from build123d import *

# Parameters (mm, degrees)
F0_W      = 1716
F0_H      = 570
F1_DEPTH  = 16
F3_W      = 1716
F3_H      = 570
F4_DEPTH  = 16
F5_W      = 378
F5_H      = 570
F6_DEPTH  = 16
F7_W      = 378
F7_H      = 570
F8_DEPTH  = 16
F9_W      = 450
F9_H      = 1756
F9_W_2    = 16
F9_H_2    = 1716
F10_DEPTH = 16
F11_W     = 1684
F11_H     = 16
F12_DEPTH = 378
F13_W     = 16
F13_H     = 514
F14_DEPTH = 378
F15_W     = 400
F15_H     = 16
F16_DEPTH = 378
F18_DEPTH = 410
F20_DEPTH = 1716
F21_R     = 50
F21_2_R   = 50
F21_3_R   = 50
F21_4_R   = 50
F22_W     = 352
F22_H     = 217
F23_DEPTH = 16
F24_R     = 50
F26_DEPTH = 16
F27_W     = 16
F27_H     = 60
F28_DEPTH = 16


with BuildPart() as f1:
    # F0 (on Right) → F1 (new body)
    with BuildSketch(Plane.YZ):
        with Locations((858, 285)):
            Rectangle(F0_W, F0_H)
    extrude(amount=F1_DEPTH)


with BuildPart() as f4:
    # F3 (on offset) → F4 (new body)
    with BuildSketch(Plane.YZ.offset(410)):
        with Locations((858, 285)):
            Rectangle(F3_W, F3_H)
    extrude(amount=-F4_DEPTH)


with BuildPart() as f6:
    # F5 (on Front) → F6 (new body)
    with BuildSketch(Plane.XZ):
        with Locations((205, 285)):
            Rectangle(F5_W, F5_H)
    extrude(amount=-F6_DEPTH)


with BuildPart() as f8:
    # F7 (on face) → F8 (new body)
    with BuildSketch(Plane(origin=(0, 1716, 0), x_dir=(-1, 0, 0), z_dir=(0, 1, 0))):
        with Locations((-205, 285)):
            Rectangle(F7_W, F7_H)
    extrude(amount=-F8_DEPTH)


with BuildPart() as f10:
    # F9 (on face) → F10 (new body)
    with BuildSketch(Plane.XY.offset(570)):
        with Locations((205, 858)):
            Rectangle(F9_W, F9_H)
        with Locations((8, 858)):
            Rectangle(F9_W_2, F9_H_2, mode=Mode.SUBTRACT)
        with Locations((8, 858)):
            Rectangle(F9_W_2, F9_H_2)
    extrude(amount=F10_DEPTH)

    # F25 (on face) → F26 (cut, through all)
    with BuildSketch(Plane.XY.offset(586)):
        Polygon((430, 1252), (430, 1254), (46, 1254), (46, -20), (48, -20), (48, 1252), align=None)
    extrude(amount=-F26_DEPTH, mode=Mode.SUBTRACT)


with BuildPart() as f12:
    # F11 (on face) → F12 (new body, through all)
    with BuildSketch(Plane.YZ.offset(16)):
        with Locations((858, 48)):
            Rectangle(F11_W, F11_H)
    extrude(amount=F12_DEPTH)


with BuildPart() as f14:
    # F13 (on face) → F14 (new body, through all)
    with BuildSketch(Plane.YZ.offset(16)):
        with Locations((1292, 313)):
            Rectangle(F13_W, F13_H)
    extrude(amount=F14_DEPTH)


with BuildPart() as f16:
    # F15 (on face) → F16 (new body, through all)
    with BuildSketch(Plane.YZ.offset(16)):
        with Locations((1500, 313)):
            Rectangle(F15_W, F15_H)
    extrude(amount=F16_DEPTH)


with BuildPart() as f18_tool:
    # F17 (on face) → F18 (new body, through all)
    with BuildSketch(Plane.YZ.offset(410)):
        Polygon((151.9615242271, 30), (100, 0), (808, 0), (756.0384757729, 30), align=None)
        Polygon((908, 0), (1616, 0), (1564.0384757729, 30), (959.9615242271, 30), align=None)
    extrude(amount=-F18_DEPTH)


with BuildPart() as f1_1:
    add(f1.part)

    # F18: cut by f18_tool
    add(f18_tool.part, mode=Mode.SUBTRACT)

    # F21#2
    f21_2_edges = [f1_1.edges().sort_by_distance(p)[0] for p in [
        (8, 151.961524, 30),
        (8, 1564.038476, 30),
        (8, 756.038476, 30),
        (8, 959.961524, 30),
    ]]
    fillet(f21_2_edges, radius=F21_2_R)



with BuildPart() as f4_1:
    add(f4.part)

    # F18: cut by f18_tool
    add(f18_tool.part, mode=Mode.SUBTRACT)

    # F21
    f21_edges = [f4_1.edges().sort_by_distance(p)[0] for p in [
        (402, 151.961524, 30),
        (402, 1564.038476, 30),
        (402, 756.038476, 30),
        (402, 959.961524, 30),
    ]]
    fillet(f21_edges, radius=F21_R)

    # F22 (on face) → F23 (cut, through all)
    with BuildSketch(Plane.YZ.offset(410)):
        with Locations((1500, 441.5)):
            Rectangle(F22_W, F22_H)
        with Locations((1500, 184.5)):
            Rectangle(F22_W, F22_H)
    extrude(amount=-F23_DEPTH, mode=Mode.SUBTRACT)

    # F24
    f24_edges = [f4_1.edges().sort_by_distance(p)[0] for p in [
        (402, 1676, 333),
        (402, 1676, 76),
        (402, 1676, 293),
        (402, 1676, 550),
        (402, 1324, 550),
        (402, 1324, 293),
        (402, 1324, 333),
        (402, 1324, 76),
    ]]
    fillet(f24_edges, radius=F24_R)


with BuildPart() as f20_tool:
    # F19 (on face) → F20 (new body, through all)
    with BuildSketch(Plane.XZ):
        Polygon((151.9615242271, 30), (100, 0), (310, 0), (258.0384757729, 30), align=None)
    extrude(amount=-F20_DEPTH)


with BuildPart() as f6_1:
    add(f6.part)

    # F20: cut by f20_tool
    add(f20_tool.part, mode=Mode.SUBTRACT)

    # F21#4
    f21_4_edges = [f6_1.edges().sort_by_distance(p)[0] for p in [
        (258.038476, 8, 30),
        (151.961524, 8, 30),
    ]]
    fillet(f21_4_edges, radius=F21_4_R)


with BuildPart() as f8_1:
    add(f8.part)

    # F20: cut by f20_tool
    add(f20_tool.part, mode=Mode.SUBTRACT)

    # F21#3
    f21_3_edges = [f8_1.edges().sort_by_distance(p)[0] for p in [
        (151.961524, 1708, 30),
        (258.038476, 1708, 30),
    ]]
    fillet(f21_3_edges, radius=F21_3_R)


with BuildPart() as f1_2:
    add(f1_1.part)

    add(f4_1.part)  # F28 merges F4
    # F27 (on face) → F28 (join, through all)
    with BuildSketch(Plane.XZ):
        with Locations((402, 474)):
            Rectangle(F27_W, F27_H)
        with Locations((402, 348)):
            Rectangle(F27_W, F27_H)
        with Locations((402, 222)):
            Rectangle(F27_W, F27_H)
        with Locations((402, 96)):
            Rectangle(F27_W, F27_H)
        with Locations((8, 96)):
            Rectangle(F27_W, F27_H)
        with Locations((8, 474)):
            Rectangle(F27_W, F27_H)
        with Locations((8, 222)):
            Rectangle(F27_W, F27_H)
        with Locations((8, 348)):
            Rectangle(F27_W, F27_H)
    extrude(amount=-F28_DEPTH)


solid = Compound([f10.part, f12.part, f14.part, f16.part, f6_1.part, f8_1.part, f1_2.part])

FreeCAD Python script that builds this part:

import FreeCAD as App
import Part
import Sketcher
Q = App.Units.Quantity


def edges_at(feature, points):
    """Names of the edges that pass closest to the given points."""
    edges = feature.Shape.Edges
    near = lambda p: min(range(len(edges)), key=lambda i: edges[i].distToShape(Part.Vertex(*p))[0])
    return sorted({f"Edge{near(p) + 1}" for p in points})

doc = App.newDocument("Part")
body = doc.addObject("PartDesign::Body", "Body")

# Sketch on YZ plane
sketch1 = doc.addObject("Sketcher::SketchObject", "Sketch")
body.addObject(sketch1)
sketch1.AttachmentSupport = (doc.YZ_Plane, [""])
sketch1.MapMode = "FlatFace"
sketch1.addGeometry(Part.LineSegment(App.Vector(0, 570, 0), App.Vector(0, 0, 0)), False)
sketch1.addGeometry(Part.LineSegment(App.Vector(0, 0, 0), App.Vector(1716, 0, 0)), False)
sketch1.addGeometry(Part.LineSegment(App.Vector(1716, 0, 0), App.Vector(1716, 570, 0)), False)
sketch1.addGeometry(Part.LineSegment(App.Vector(1716, 570, 0), App.Vector(0, 570, 0)), False)
sketch1.addConstraint(Sketcher.Constraint("Coincident", 0, 2, 1, 1))
sketch1.addConstraint(Sketcher.Constraint("Coincident", 1, 2, 2, 1))
sketch1.addConstraint(Sketcher.Constraint("Coincident", 2, 2, 3, 1))
sketch1.addConstraint(Sketcher.Constraint("Coincident", 3, 2, 0, 1))
sketch1.addConstraint(Sketcher.Constraint("Vertical", 0))
sketch1.addConstraint(Sketcher.Constraint("Horizontal", 1))
sketch1.addConstraint(Sketcher.Constraint("Vertical", 2))
sketch1.addConstraint(Sketcher.Constraint("Horizontal", 3))
sketch1.addConstraint(Sketcher.Constraint("Coincident", 0, 2, -1, 1))
sketch1.addConstraint(Sketcher.Constraint("DistanceX", 1, 1, 1, 2, Q("1716 mm")))
sketch1.addConstraint(Sketcher.Constraint("DistanceY", 0, 2, 0, 1, Q("570 mm")))
pad1 = doc.addObject("PartDesign::Pad", "Pad")
body.addObject(pad1)
pad1.Profile = sketch1
pad1.Length = 16
body2 = doc.addObject("PartDesign::Body", "Body001")

# Sketch on YZ plane
sketch2 = doc.addObject("Sketcher::SketchObject", "Sketch001")
body2.addObject(sketch2)
sketch2.AttachmentSupport = (doc.getObject("YZ_Plane001"), [""])
sketch2.MapMode = "FlatFace"
sketch2.AttachmentOffset = App.Placement(App.Vector(0, 0, 410), App.Rotation())
sketch2.addGeometry(Part.LineSegment(App.Vector(0, 570, 0), App.Vector(0, 0, 0)), False)
sketch2.addGeometry(Part.LineSegment(App.Vector(0, 0, 0), App.Vector(1716, 0, 0)), False)
sketch2.addGeometry(Part.LineSegment(App.Vector(1716, 0, 0), App.Vector(1716, 570, 0)), False)
sketch2.addGeometry(Part.LineSegment(App.Vector(1716, 570, 0), App.Vector(0, 570, 0)), False)
sketch2.addConstraint(Sketcher.Constraint("Coincident", 0, 2, 1, 1))
sketch2.addConstraint(Sketcher.Constraint("Coincident", 1, 2, 2, 1))
sketch2.addConstraint(Sketcher.Constraint("Coincident", 2, 2, 3, 1))
sketch2.addConstraint(Sketcher.Constraint("Coincident", 3, 2, 0, 1))
sketch2.addConstraint(Sketcher.Constraint("Vertical", 0))
sketch2.addConstraint(Sketcher.Constraint("Horizontal", 1))
sketch2.addConstraint(Sketcher.Constraint("Vertical", 2))
sketch2.addConstraint(Sketcher.Constraint("Horizontal", 3))
sketch2.addConstraint(Sketcher.Constraint("Coincident", 0, 2, -1, 1))
sketch2.addConstraint(Sketcher.Constraint("DistanceX", 1, 1, 1, 2, Q("1716 mm")))
sketch2.addConstraint(Sketcher.Constraint("DistanceY", 0, 2, 0, 1, Q("570 mm")))
pad2 = doc.addObject("PartDesign::Pad", "Pad001")
body2.addObject(pad2)
pad2.Profile = sketch2
pad2.Length = 16
pad2.Reversed = True
body3 = doc.addObject("PartDesign::Body", "Body002")

# Sketch on XZ plane
sketch3 = doc.addObject("Sketcher::SketchObject", "Sketch002")
body3.addObject(sketch3)
sketch3.AttachmentSupport = (doc.getObject("XZ_Plane002"), [""])
sketch3.MapMode = "FlatFace"
sketch3.addGeometry(Part.LineSegment(App.Vector(16, 570, 0), App.Vector(16, 0, 0)), False)
sketch3.addGeometry(Part.LineSegment(App.Vector(16, 0, 0), App.Vector(394, 0, 0)), False)
sketch3.addGeometry(Part.LineSegment(App.Vector(394, 0, 0), App.Vector(394, 570, 0)), False)
sketch3.addGeometry(Part.LineSegment(App.Vector(394, 570, 0), App.Vector(16, 570, 0)), False)
sketch3.addConstraint(Sketcher.Constraint("Coincident", 0, 2, 1, 1))
sketch3.addConstraint(Sketcher.Constraint("Coincident", 1, 2, 2, 1))
sketch3.addConstraint(Sketcher.Constraint("Coincident", 2, 2, 3, 1))
sketch3.addConstraint(Sketcher.Constraint("Coincident", 3, 2, 0, 1))
sketch3.addConstraint(Sketcher.Constraint("Vertical", 0))
sketch3.addConstraint(Sketcher.Constraint("Horizontal", 1))
sketch3.addConstraint(Sketcher.Constraint("Vertical", 2))
sketch3.addConstraint(Sketcher.Constraint("Horizontal", 3))
sketch3.addConstraint(Sketcher.Constraint("PointOnObject", 0, 2, -1))
sketch3.addConstraint(Sketcher.Constraint("DistanceX", 1, 1, 1, 2, Q("378 mm")))
sketch3.addConstraint(Sketcher.Constraint("DistanceY", 0, 2, 0, 1, Q("570 mm")))
sketch3.addConstraint(Sketcher.Constraint("DistanceX", -1, 1, 0, 2, Q("16 mm")))
pad3 = doc.addObject("PartDesign::Pad", "Pad002")
body3.addObject(pad3)
pad3.Profile = sketch3
pad3.Length = 16
pad3.Reversed = True
body4 = doc.addObject("PartDesign::Body", "Body003")

# Sketch on XZ plane
sketch4 = doc.addObject("Sketcher::SketchObject", "Sketch003")
body4.addObject(sketch4)
sketch4.AttachmentSupport = (doc.getObject("XZ_Plane003"), [""])
sketch4.MapMode = "FlatFace"
sketch4.AttachmentOffset = App.Placement(App.Vector(0, 0, -1716), App.Rotation())
sketch4.addGeometry(Part.LineSegment(App.Vector(394, 570, 0), App.Vector(394, 0, 0)), False)
sketch4.addGeometry(Part.LineSegment(App.Vector(394, 0, 0), App.Vector(16, 0, 0)), False)
sketch4.addGeometry(Part.LineSegment(App.Vector(16, 0, 0), App.Vector(16, 570, 0)), False)
sketch4.addGeometry(Part.LineSegment(App.Vector(16, 570, 0), App.Vector(394, 570, 0)), False)
sketch4.addConstraint(Sketcher.Constraint("Coincident", 0, 2, 1, 1))
sketch4.addConstraint(Sketcher.Constraint("Coincident", 1, 2, 2, 1))
sketch4.addConstraint(Sketcher.Constraint("Coincident", 2, 2, 3, 1))
sketch4.addConstraint(Sketcher.Constraint("Coincident", 3, 2, 0, 1))
sketch4.addConstraint(Sketcher.Constraint("Vertical", 0))
sketch4.addConstraint(Sketcher.Constraint("Horizontal", 1))
sketch4.addConstraint(Sketcher.Constraint("Vertical", 2))
sketch4.addConstraint(Sketcher.Constraint("Horizontal", 3))
sketch4.addConstraint(Sketcher.Constraint("PointOnObject", 0, 2, -1))
sketch4.addConstraint(Sketcher.Constraint("DistanceX", 1, 2, 1, 1, Q("378 mm")))
sketch4.addConstraint(Sketcher.Constraint("DistanceY", 0, 2, 0, 1, Q("570 mm")))
sketch4.addConstraint(Sketcher.Constraint("DistanceX", -1, 1, 0, 2, Q("394 mm")))
pad4 = doc.addObject("PartDesign::Pad", "Pad003")
body4.addObject(pad4)
pad4.Profile = sketch4
pad4.Length = 16
body5 = doc.addObject("PartDesign::Body", "Body004")
body5.AllowCompound = True

# Sketch on XY plane
sketch5 = doc.addObject("Sketcher::SketchObject", "Sketch004")
body5.addObject(sketch5)
sketch5.AttachmentSupport = (doc.getObject("XY_Plane004"), [""])
sketch5.MapMode = "FlatFace"
sketch5.AttachmentOffset = App.Placement(App.Vector(0, 0, 570), App.Rotation())
sketch5.addGeometry(Part.LineSegment(App.Vector(-20, 1736, 0), App.Vector(-20, -20, 0)), False)
sketch5.addGeometry(Part.LineSegment(App.Vector(-20, -20, 0), App.Vector(430, -20, 0)), False)
sketch5.addGeometry(Part.LineSegment(App.Vector(430, -20, 0), App.Vector(430, 1736, 0)), False)
sketch5.addGeometry(Part.LineSegment(App.Vector(430, 1736, 0), App.Vector(-20, 1736, 0)), False)
sketch5.addConstraint(Sketcher.Constraint("Coincident", 0, 2, 1, 1))
sketch5.addConstraint(Sketcher.Constraint("Coincident", 1, 2, 2, 1))
sketch5.addConstraint(Sketcher.Constraint("Coincident", 2, 2, 3, 1))
sketch5.addConstraint(Sketcher.Constraint("Coincident", 3, 2, 0, 1))
sketch5.addConstraint(Sketcher.Constraint("Vertical", 0))
sketch5.addConstraint(Sketcher.Constraint("Horizontal", 1))
sketch5.addConstraint(Sketcher.Constraint("Vertical", 2))
sketch5.addConstraint(Sketcher.Constraint("Horizontal", 3))
sketch5.addConstraint(Sketcher.Constraint("DistanceX", 1, 1, 1, 2, Q("450 mm")))
sketch5.addConstraint(Sketcher.Constraint("DistanceY", 0, 2, 0, 1, Q("1756 mm")))
sketch5.addConstraint(Sketcher.Constraint("DistanceX", 0, 2, -1, 1, Q("20 mm")))
sketch5.addConstraint(Sketcher.Constraint("DistanceY", 0, 2, -1, 1, Q("20 mm")))
pad5 = doc.addObject("PartDesign::Pad", "Pad004")
body5.addObject(pad5)
pad5.Profile = sketch5
pad5.Length = 16

# Sketch on XY plane
sketch6 = doc.addObject("Sketcher::SketchObject", "Sketch005")
body5.addObject(sketch6)
sketch6.AttachmentSupport = (doc.getObject("XY_Plane004"), [""])
sketch6.MapMode = "FlatFace"
sketch6.AttachmentOffset = App.Placement(App.Vector(0, 0, 586), App.Rotation())
sketch6.addGeometry(Part.LineSegment(App.Vector(430, 1252, 0), App.Vector(430, 1254, 0)), False)
sketch6.addGeometry(Part.LineSegment(App.Vector(430, 1254, 0), App.Vector(46, 1254, 0)), False)
sketch6.addGeometry(Part.LineSegment(App.Vector(46, 1254, 0), App.Vector(46, -20, 0)), False)
sketch6.addGeometry(Part.LineSegment(App.Vector(46, -20, 0), App.Vector(48, -20, 0)), False)
sketch6.addGeometry(Part.LineSegment(App.Vector(48, -20, 0), App.Vector(48, 1252, 0)), False)
sketch6.addGeometry(Part.LineSegment(App.Vector(48, 1252, 0), App.Vector(430, 1252, 0)), False)
sketch6.addConstraint(Sketcher.Constraint("Coincident", 0, 2, 1, 1))
sketch6.addConstraint(Sketcher.Constraint("Coincident", 1, 2, 2, 1))
sketch6.addConstraint(Sketcher.Constraint("Coincident", 2, 2, 3, 1))
sketch6.addConstraint(Sketcher.Constraint("Coincident", 3, 2, 4, 1))
sketch6.addConstraint(Sketcher.Constraint("Coincident", 4, 2, 5, 1))
sketch6.addConstraint(Sketcher.Constraint("Coincident", 5, 2, 0, 1))
sketch6.addConstraint(Sketcher.Constraint("Vertical", 0))
sketch6.addConstraint(Sketcher.Constraint("Horizontal", 1))
sketch6.addConstraint(Sketcher.Constraint("Vertical", 2))
sketch6.addConstraint(Sketcher.Constraint("Horizontal", 3))
sketch6.addConstraint(Sketcher.Constraint("Vertical", 4))
sketch6.addConstraint(Sketcher.Constraint("Horizontal", 5))
sketch6.addConstraint(Sketcher.Constraint("Equal", 3, 0))
sketch6.addConstraint(Sketcher.Constraint("DistanceX", 1, 2, 1, 1, Q("384 mm")))
sketch6.addConstraint(Sketcher.Constraint("DistanceX", 3, 1, 3, 2, Q("2 mm")))
sketch6.addConstraint(Sketcher.Constraint("DistanceY", 2, 2, 2, 1, Q("1274 mm")))
sketch6.addConstraint(Sketcher.Constraint("DistanceX", -1, 1, 0, 2, Q("430 mm")))
sketch6.addConstraint(Sketcher.Constraint("DistanceY", -1, 1, 0, 2, Q("1254 mm")))
pocket1 = doc.addObject("PartDesign::Pocket", "Pocket")
body5.addObject(pocket1)
pocket1.Profile = sketch6
pocket1.Type = "ThroughAll"
body6 = doc.addObject("PartDesign::Body", "Body005")

# Sketch on YZ plane
sketch7 = doc.addObject("Sketcher::SketchObject", "Sketch006")
body6.addObject(sketch7)
sketch7.AttachmentSupport = (doc.getObject("YZ_Plane005"), [""])
sketch7.MapMode = "FlatFace"
sketch7.AttachmentOffset = App.Placement(App.Vector(0, 0, 16), App.Rotation())
sketch7.addGeometry(Part.LineSegment(App.Vector(16, 56, 0), App.Vector(16, 40, 0)), False)
sketch7.addGeometry(Part.LineSegment(App.Vector(16, 40, 0), App.Vector(1700, 40, 0)), False)
sketch7.addGeometry(Part.LineSegment(App.Vector(1700, 40, 0), App.Vector(1700, 56, 0)), False)
sketch7.addGeometry(Part.LineSegment(App.Vector(1700, 56, 0), App.Vector(16, 56, 0)), False)
sketch7.addConstraint(Sketcher.Constraint("Coincident", 0, 2, 1, 1))
sketch7.addConstraint(Sketcher.Constraint("Coincident", 1, 2, 2, 1))
sketch7.addConstraint(Sketcher.Constraint("Coincident", 2, 2, 3, 1))
sketch7.addConstraint(Sketcher.Constraint("Coincident", 3, 2, 0, 1))
sketch7.addConstraint(Sketcher.Constraint("Vertical", 0))
sketch7.addConstraint(Sketcher.Constraint("Horizontal", 1))
sketch7.addConstraint(Sketcher.Constraint("Vertical", 2))
sketch7.addConstraint(Sketcher.Constraint("Horizontal", 3))
sketch7.addConstraint(Sketcher.Constraint("DistanceX", 1, 1, 1, 2, Q("1684 mm")))
sketch7.addConstraint(Sketcher.Constraint("DistanceY", 0, 2, 0, 1, Q("16 mm")))
sketch7.addConstraint(Sketcher.Constraint("DistanceX", -1, 1, 0, 2, Q("16 mm")))
sketch7.addConstraint(Sketcher.Constraint("DistanceY", -1, 1, 0, 2, Q("40 mm")))
pad6 = doc.addObject("PartDesign::Pad", "Pad005")
body6.addObject(pad6)
pad6.Profile = sketch7
pad6.Length = 378
body7 = doc.addObject("PartDesign::Body", "Body006")

# Sketch on YZ plane
sketch8 = doc.addObject("Sketcher::SketchObject", "Sketch007")
body7.addObject(sketch8)
sketch8.AttachmentSupport = (doc.getObject("YZ_Plane006"), [""])
sketch8.MapMode = "FlatFace"
sketch8.AttachmentOffset = App.Placement(App.Vector(0, 0, 16), App.Rotation())
sketch8.addGeometry(Part.LineSegment(App.Vector(1284, 570, 0), App.Vector(1284, 56, 0)), False)
sketch8.addGeometry(Part.LineSegment(App.Vector(1284, 56, 0), App.Vector(1300, 56, 0)), False)
sketch8.addGeometry(Part.LineSegment(App.Vector(1300, 56, 0), App.Vector(1300, 570, 0)), False)
sketch8.addGeometry(Part.LineSegment(App.Vector(1300, 570, 0), App.Vector(1284, 570, 0)), False)
sketch8.addConstraint(Sketcher.Constraint("Coincident", 0, 2, 1, 1))
sketch8.addConstraint(Sketcher.Constraint("Coincident", 1, 2, 2, 1))
sketch8.addConstraint(Sketcher.Constraint("Coincident", 2, 2, 3, 1))
sketch8.addConstraint(Sketcher.Constraint("Coincident", 3, 2, 0, 1))
sketch8.addConstraint(Sketcher.Constraint("Vertical", 0))
sketch8.addConstraint(Sketcher.Constraint("Horizontal", 1))
sketch8.addConstraint(Sketcher.Constraint("Vertical", 2))
sketch8.addConstraint(Sketcher.Constraint("Horizontal", 3))
sketch8.addConstraint(Sketcher.Constraint("DistanceX", 1, 1, 1, 2, Q("16 mm")))
sketch8.addConstraint(Sketcher.Constraint("DistanceY", 0, 2, 0, 1, Q("514 mm")))
sketch8.addConstraint(Sketcher.Constraint("DistanceX", -1, 1, 0, 2, Q("1284 mm")))
sketch8.addConstraint(Sketcher.Constraint("DistanceY", -1, 1, 0, 2, Q("56 mm")))
pad7 = doc.addObject("PartDesign::Pad", "Pad006")
body7.addObject(pad7)
pad7.Profile = sketch8
pad7.Length = 378
body8 = doc.addObject("PartDesign::Body", "Body007")

# Sketch on YZ plane
sketch9 = doc.addObject("Sketcher::SketchObject", "Sketch008")
body8.addObject(sketch9)
sketch9.AttachmentSupport = (doc.getObject("YZ_Plane007"), [""])
sketch9.MapMode = "FlatFace"
sketch9.AttachmentOffset = App.Placement(App.Vector(0, 0, 16), App.Rotation())
sketch9.addGeometry(Part.LineSegment(App.Vector(1300, 321, 0), App.Vector(1300, 305, 0)), False)
sketch9.addGeometry(Part.LineSegment(App.Vector(1300, 305, 0), App.Vector(1700, 305, 0)), False)
sketch9.addGeometry(Part.LineSegment(App.Vector(1700, 305, 0), App.Vector(1700, 321, 0)), False)
sketch9.addGeometry(Part.LineSegment(App.Vector(1700, 321, 0), App.Vector(1300, 321, 0)), False)
sketch9.addConstraint(Sketcher.Constraint("Coincident", 0, 2, 1, 1))
sketch9.addConstraint(Sketcher.Constraint("Coincident", 1, 2, 2, 1))
sketch9.addConstraint(Sketcher.Constraint("Coincident", 2, 2, 3, 1))
sketch9.addConstraint(Sketcher.Constraint("Coincident", 3, 2, 0, 1))
sketch9.addConstraint(Sketcher.Constraint("Vertical", 0))
sketch9.addConstraint(Sketcher.Constraint("Horizontal", 1))
sketch9.addConstraint(Sketcher.Constraint("Vertical", 2))
sketch9.addConstraint(Sketcher.Constraint("Horizontal", 3))
sketch9.addConstraint(Sketcher.Constraint("DistanceX", 1, 1, 1, 2, Q("400 mm")))
sketch9.addConstraint(Sketcher.Constraint("DistanceY", 0, 2, 0, 1, Q("16 mm")))
sketch9.addConstraint(Sketcher.Constraint("DistanceX", -1, 1, 0, 2, Q("1300 mm")))
sketch9.addConstraint(Sketcher.Constraint("DistanceY", -1, 1, 0, 2, Q("305 mm")))
pad8 = doc.addObject("PartDesign::Pad", "Pad007")
body8.addObject(pad8)
pad8.Profile = sketch9
pad8.Length = 378
body9 = doc.addObject("PartDesign::Body", "Body008")
body9.AllowCompound = True

# Sketch on YZ plane
sketch10 = doc.addObject("Sketcher::SketchObject", "Sketch009")
body9.addObject(sketch10)
sketch10.AttachmentSupport = (doc.getObject("YZ_Plane008"), [""])
sketch10.MapMode = "FlatFace"
sketch10.AttachmentOffset = App.Placement(App.Vector(0, 0, 410), App.Rotation())
sketch10.addGeometry(Part.LineSegment(App.Vector(152, 30, 0), App.Vector(100, 0, 0)), False)
sketch10.addGeometry(Part.LineSegment(App.Vector(100, 0, 0), App.Vector(808, 0, 0)), False)
sketch10.addGeometry(Part.LineSegment(App.Vector(808, 0, 0), App.Vector(756, 30, 0)), False)
sketch10.addGeometry(Part.LineSegment(App.Vector(756, 30, 0), App.Vector(152, 30, 0)), False)
sketch10.addGeometry(Part.LineSegment(App.Vector(908, 0, 0), App.Vector(1616, 0, 0)), False)
sketch10.addGeometry(Part.LineSegment(App.Vector(1616, 0, 0), App.Vector(1564, 30, 0)), False)
sketch10.addGeometry(Part.LineSegment(App.Vector(1564, 30, 0), App.Vector(960, 30, 0)), False)
sketch10.addGeometry(Part.LineSegment(App.Vector(960, 30, 0), App.Vector(908, 0, 0)), False)
sketch10.addConstraint(Sketcher.Constraint("Coincident", 0, 2, 1, 1))
sketch10.addConstraint(Sketcher.Constraint("Coincident", 1, 2, 2, 1))
sketch10.addConstraint(Sketcher.Constraint("Coincident", 2, 2, 3, 1))
sketch10.addConstraint(Sketcher.Constraint("Coincident", 3, 2, 0, 1))
sketch10.addConstraint(Sketcher.Constraint("Coincident", 4, 2, 5, 1))
sketch10.addConstraint(Sketcher.Constraint("Coincident", 5, 2, 6, 1))
sketch10.addConstraint(Sketcher.Constraint("Coincident", 6, 2, 7, 1))
sketch10.addConstraint(Sketcher.Constraint("Coincident", 7, 2, 4, 1))
sketch10.addConstraint(Sketcher.Constraint("Horizontal", 1))
sketch10.addConstraint(Sketcher.Constraint("Horizontal", 3))
sketch10.addConstraint(Sketcher.Constraint("Horizontal", 4))
sketch10.addConstraint(Sketcher.Constraint("Horizontal", 6))
sketch10.addConstraint(Sketcher.Constraint("PointOnObject", 0, 2, -1))
sketch10.addConstraint(Sketcher.Constraint("PointOnObject", 4, 2, -1))
sketch10.addConstraint(Sketcher.Constraint("Parallel", 2, 5))
sketch10.addConstraint(Sketcher.Constraint("Parallel", 0, 7))
sketch10.addConstraint(Sketcher.Constraint("Horizontal", 3, 2, 5, 2))
sketch10.addConstraint(Sketcher.Constraint("Equal", 1, 4))
sketch10.addConstraint(Sketcher.Constraint("Equal", 0, 2))
sketch10.addConstraint(Sketcher.Constraint("DistanceX", 1, 1, 1, 2, Q("708 mm")))
sketch10.addConstraint(Sketcher.Constraint("Angle", 0, Q("-150 deg")))
sketch10.addConstraint(Sketcher.Constraint("Distance", 0, Q("60 mm")))
sketch10.addConstraint(Sketcher.Constraint("DistanceX", -1, 1, 0, 2, Q("100 mm")))
sketch10.addConstraint(Sketcher.Constraint("DistanceX", -1, 1, 4, 2, Q("1616 mm")))
pad9 = doc.addObject("PartDesign::Pad", "Pad008")
body9.addObject(pad9)
pad9.Profile = sketch10
pad9.Length = 410
pad9.Reversed = True
doc.recompute()

body10 = doc.addObject("PartDesign::Body", "Body009")
body10.BaseFeature = body9
boolean = doc.addObject("PartDesign::Boolean", "Boolean")
body.addObject(boolean)
boolean.Type = "Cut"
boolean.addObjects([body10])
doc.recompute()

fillet = doc.addObject("PartDesign::Fillet", "Fillet")
body.addObject(fillet)
fillet.Base = (boolean, edges_at(boolean, [
    (8, 151.962, 30),
    (8, 1564.038, 30),
    (8, 756.038, 30),
    (8, 959.962, 30),
]))
fillet.Radius = 50
doc.recompute()

boolean2 = doc.addObject("PartDesign::Boolean", "Boolean001")
body2.addObject(boolean2)
boolean2.Type = "Cut"
boolean2.addObjects([body9])
doc.recompute()

fillet2 = doc.addObject("PartDesign::Fillet", "Fillet001")
body2.addObject(fillet2)
fillet2.Base = (boolean2, edges_at(boolean2, [
    (402, 151.962, 30),
    (402, 1564.038, 30),
    (402, 756.038, 30),
    (402, 959.962, 30),
]))
fillet2.Radius = 50

# Sketch on YZ plane
sketch11 = doc.addObject("Sketcher::SketchObject", "Sketch010")
body2.addObject(sketch11)
sketch11.AttachmentSupport = (doc.getObject("YZ_Plane001"), [""])
sketch11.MapMode = "FlatFace"
sketch11.AttachmentOffset = App.Placement(App.Vector(0, 0, 410), App.Rotation())
sketch11.addGeometry(Part.LineSegment(App.Vector(1324, 550, 0), App.Vector(1324, 333, 0)), False)
sketch11.addGeometry(Part.LineSegment(App.Vector(1324, 333, 0), App.Vector(1676, 333, 0)), False)
sketch11.addGeometry(Part.LineSegment(App.Vector(1676, 333, 0), App.Vector(1676, 550, 0)), False)
sketch11.addGeometry(Part.LineSegment(App.Vector(1676, 550, 0), App.Vector(1324, 550, 0)), False)
sketch11.addGeometry(Part.LineSegment(App.Vector(1324, 293, 0), App.Vector(1324, 76, 0)), False)
sketch11.addGeometry(Part.LineSegment(App.Vector(1324, 76, 0), App.Vector(1676, 76, 0)), False)
sketch11.addGeometry(Part.LineSegment(App.Vector(1676, 76, 0), App.Vector(1676, 293, 0)), False)
sketch11.addGeometry(Part.LineSegment(App.Vector(1676, 293, 0), App.Vector(1324, 293, 0)), False)
sketch11.addConstraint(Sketcher.Constraint("Coincident", 0, 2, 1, 1))
sketch11.addConstraint(Sketcher.Constraint("Coincident", 1, 2, 2, 1))
sketch11.addConstraint(Sketcher.Constraint("Coincident", 2, 2, 3, 1))
sketch11.addConstraint(Sketcher.Constraint("Coincident", 3, 2, 0, 1))
sketch11.addConstraint(Sketcher.Constraint("Coincident", 4, 2, 5, 1))
sketch11.addConstraint(Sketcher.Constraint("Coincident", 5, 2, 6, 1))
sketch11.addConstraint(Sketcher.Constraint("Coincident", 6, 2, 7, 1))
sketch11.addConstraint(Sketcher.Constraint("Coincident", 7, 2, 4, 1))
sketch11.addConstraint(Sketcher.Constraint("Vertical", 0))
sketch11.addConstraint(Sketcher.Constraint("Horizontal", 1))
sketch11.addConstraint(Sketcher.Constraint("Vertical", 2))
sketch11.addConstraint(Sketcher.Constraint("Horizontal", 3))
sketch11.addConstraint(Sketcher.Constraint("Vertical", 4))
sketch11.addConstraint(Sketcher.Constraint("Horizontal", 5))
sketch11.addConstraint(Sketcher.Constraint("Vertical", 6))
sketch11.addConstraint(Sketcher.Constraint("Horizontal", 7))
sketch11.addConstraint(Sketcher.Constraint("Vertical", 3, 2, 4, 2))
sketch11.addConstraint(Sketcher.Constraint("Vertical", 2, 2, 5, 2))
sketch11.addConstraint(Sketcher.Constraint("Equal", 2, 4))
sketch11.addConstraint(Sketcher.Constraint("DistanceX", 1, 1, 1, 2, Q("352 mm")))
sketch11.addConstraint(Sketcher.Constraint("DistanceY", 0, 2, 0, 1, Q("217 mm")))
sketch11.addConstraint(Sketcher.Constraint("DistanceX", -1, 1, 0, 2, Q("1324 mm")))
sketch11.addConstraint(Sketcher.Constraint("DistanceY", -1, 1, 0, 2, Q("333 mm")))
sketch11.addConstraint(Sketcher.Constraint("DistanceY", -1, 1, 4, 2, Q("76 mm")))
pocket2 = doc.addObject("PartDesign::Pocket", "Pocket001")
body2.addObject(pocket2)
pocket2.Profile = sketch11
pocket2.Type = "ThroughAll"
doc.recompute()

fillet3 = doc.addObject("PartDesign::Fillet", "Fillet002")
body2.addObject(fillet3)
fillet3.Base = (pocket2, edges_at(pocket2, [
    (402, 1676, 333),
    (402, 1676, 76),
    (402, 1676, 293),
    (402, 1676, 550),
    (402, 1324, 550),
    (402, 1324, 293),
    (402, 1324, 333),
    (402, 1324, 76),
]))
fillet3.Radius = 50
body11 = doc.addObject("PartDesign::Body", "Body010")

# Sketch on XZ plane
sketch12 = doc.addObject("Sketcher::SketchObject", "Sketch011")
body11.addObject(sketch12)
sketch12.AttachmentSupport = (doc.getObject("XZ_Plane010"), [""])
sketch12.MapMode = "FlatFace"
sketch12.addGeometry(Part.LineSegment(App.Vector(152, 30, 0), App.Vector(100, 0, 0)), False)
sketch12.addGeometry(Part.LineSegment(App.Vector(100, 0, 0), App.Vector(310, 0, 0)), False)
sketch12.addGeometry(Part.LineSegment(App.Vector(310, 0, 0), App.Vector(258, 30, 0)), False)
sketch12.addGeometry(Part.LineSegment(App.Vector(258, 30, 0), App.Vector(152, 30, 0)), False)
sketch12.addConstraint(Sketcher.Constraint("Coincident", 0, 2, 1, 1))
sketch12.addConstraint(Sketcher.Constraint("Coincident", 1, 2, 2, 1))
sketch12.addConstraint(Sketcher.Constraint("Coincident", 2, 2, 3, 1))
sketch12.addConstraint(Sketcher.Constraint("Coincident", 3, 2, 0, 1))
sketch12.addConstraint(Sketcher.Constraint("Horizontal", 1))
sketch12.addConstraint(Sketcher.Constraint("Horizontal", 3))
sketch12.addConstraint(Sketcher.Constraint("PointOnObject", 0, 2, -1))
sketch12.addConstraint(Sketcher.Constraint("Equal", 0, 2))
sketch12.addConstraint(Sketcher.Constraint("DistanceX", 1, 1, 1, 2, Q("210 mm")))
sketch12.addConstraint(Sketcher.Constraint("Angle", 0, Q("-150 deg")))
sketch12.addConstraint(Sketcher.Constraint("Distance", 0, Q("60 mm")))
sketch12.addConstraint(Sketcher.Constraint("DistanceX", -1, 1, 0, 2, Q("100 mm")))
pad10 = doc.addObject("PartDesign::Pad", "Pad009")
body11.addObject(pad10)
pad10.Profile = sketch12
pad10.Length = 1716
pad10.Reversed = True
doc.recompute()

body12 = doc.addObject("PartDesign::Body", "Body011")
body12.BaseFeature = body11
boolean3 = doc.addObject("PartDesign::Boolean", "Boolean002")
body3.addObject(boolean3)
boolean3.Type = "Cut"
boolean3.addObjects([body12])
doc.recompute()

fillet4 = doc.addObject("PartDesign::Fillet", "Fillet003")
body3.addObject(fillet4)
fillet4.Base = (boolean3, edges_at(boolean3, [(258.038, 8, 30), (151.962, 8, 30)]))
fillet4.Radius = 50
doc.recompute()

boolean4 = doc.addObject("PartDesign::Boolean", "Boolean003")
body4.addObject(boolean4)
boolean4.Type = "Cut"
boolean4.addObjects([body11])
doc.recompute()

fillet5 = doc.addObject("PartDesign::Fillet", "Fillet004")
body4.addObject(fillet5)
fillet5.Base = (boolean4, edges_at(boolean4, [(151.962, 1708, 30), (258.038, 1708, 30)]))
fillet5.Radius = 50
body.AllowCompound = True
doc.recompute()

boolean5 = doc.addObject("PartDesign::Boolean", "Boolean004")
body.addObject(boolean5)
boolean5.Type = "Fuse"
boolean5.addObjects([body2])

# Sketch on XZ plane
sketch13 = doc.addObject("Sketcher::SketchObject", "Sketch012")
body.addObject(sketch13)
sketch13.AttachmentSupport = (doc.XZ_Plane, [""])
sketch13.MapMode = "FlatFace"
sketch13.addGeometry(Part.LineSegment(App.Vector(394, 504, 0), App.Vector(394, 444, 0)), False)
sketch13.addGeometry(Part.LineSegment(App.Vector(394, 444, 0), App.Vector(410, 444, 0)), False)
sketch13.addGeometry(Part.LineSegment(App.Vector(410, 444, 0), App.Vector(410, 504, 0)), False)
sketch13.addGeometry(Part.LineSegment(App.Vector(410, 504, 0), App.Vector(394, 504, 0)), False)
sketch13.addGeometry(Part.LineSegment(App.Vector(394, 378, 0), App.Vector(394, 318, 0)), False)
sketch13.addGeometry(Part.LineSegment(App.Vector(394, 318, 0), App.Vector(410, 318, 0)), False)
sketch13.addGeometry(Part.LineSegment(App.Vector(410, 318, 0), App.Vector(410, 378, 0)), False)
sketch13.addGeometry(Part.LineSegment(App.Vector(410, 378, 0), App.Vector(394, 378, 0)), False)
sketch13.addGeometry(Part.LineSegment(App.Vector(394, 252, 0), App.Vector(394, 192, 0)), False)
sketch13.addGeometry(Part.LineSegment(App.Vector(394, 192, 0), App.Vector(410, 192, 0)), False)
sketch13.addGeometry(Part.LineSegment(App.Vector(410, 192, 0), App.Vector(410, 252, 0)), False)
sketch13.addGeometry(Part.LineSegment(App.Vector(410, 252, 0), App.Vector(394, 252, 0)), False)
sketch13.addGeometry(Part.LineSegment(App.Vector(394, 126, 0), App.Vector(394, 66, 0)), False)
sketch13.addGeometry(Part.LineSegment(App.Vector(394, 66, 0), App.Vector(410, 66, 0)), False)
sketch13.addGeometry(Part.LineSegment(App.Vector(410, 66, 0), App.Vector(410, 126, 0)), False)
sketch13.addGeometry(Part.LineSegment(App.Vector(410, 126, 0), App.Vector(394, 126, 0)), False)
sketch13.addGeometry(Part.LineSegment(App.Vector(0, 126, 0), App.Vector(0, 66, 0)), False)
sketch13.addGeometry(Part.LineSegment(App.Vector(0, 66, 0), App.Vector(16, 66, 0)), False)
sketch13.addGeometry(Part.LineSegment(App.Vector(16, 66, 0), App.Vector(16, 126, 0)), False)
sketch13.addGeometry(Part.LineSegment(App.Vector(16, 126, 0), App.Vector(0, 126, 0)), False)
sketch13.addGeometry(Part.LineSegment(App.Vector(0, 504, 0), App.Vector(0, 444, 0)), False)
sketch13.addGeometry(Part.LineSegment(App.Vector(0, 444, 0), App.Vector(16, 444, 0)), False)
sketch13.addGeometry(Part.LineSegment(App.Vector(16, 444, 0), App.Vector(16, 504, 0)), False)
sketch13.addGeometry(Part.LineSegment(App.Vector(16, 504, 0), App.Vector(0, 504, 0)), False)
sketch13.addGeometry(Part.LineSegment(App.Vector(0, 252, 0), App.Vector(0, 192, 0)), False)
sketch13.addGeometry(Part.LineSegment(App.Vector(0, 192, 0), App.Vector(16, 192, 0)), False)
sketch13.addGeometry(Part.LineSegment(App.Vector(16, 192, 0), App.Vector(16, 252, 0)), False)
sketch13.addGeometry(Part.LineSegment(App.Vector(16, 252, 0), App.Vector(0, 252, 0)), False)
sketch13.addGeometry(Part.LineSegment(App.Vector(0, 378, 0), App.Vector(0, 318, 0)), False)
sketch13.addGeometry(Part.LineSegment(App.Vector(0, 318, 0), App.Vector(16, 318, 0)), False)
sketch13.addGeometry(Part.LineSegment(App.Vector(16, 318, 0), App.Vector(16, 378, 0)), False)
sketch13.addGeometry(Part.LineSegment(App.Vector(16, 378, 0), App.Vector(0, 378, 0)), False)
sketch13.addConstraint(Sketcher.Constraint("Coincident", 0, 2, 1, 1))
sketch13.addConstraint(Sketcher.Constraint("Coincident", 1, 2, 2, 1))
sketch13.addConstraint(Sketcher.Constraint("Coincident", 2, 2, 3, 1))
sketch13.addConstraint(Sketcher.Constraint("Coincident", 3, 2, 0, 1))
sketch13.addConstraint(Sketcher.Constraint("Coincident", 4, 2, 5, 1))
sketch13.addConstraint(Sketcher.Constraint("Coincident", 5, 2, 6, 1))
sketch13.addConstraint(Sketcher.Constraint("Coincident", 6, 2, 7, 1))
sketch13.addConstraint(Sketcher.Constraint("Coincident", 7, 2, 4, 1))
sketch13.addConstraint(Sketcher.Constraint("Coincident", 8, 2, 9, 1))
sketch13.addConstraint(Sketcher.Constraint("Coincident", 9, 2, 10, 1))
sketch13.addConstraint(Sketcher.Constraint("Coincident", 10, 2, 11, 1))
sketch13.addConstraint(Sketcher.Constraint("Coincident", 11, 2, 8, 1))
sketch13.addConstraint(Sketcher.Constraint("Coincident", 12, 2, 13, 1))
sketch13.addConstraint(Sketcher.Constraint("Coincident", 13, 2, 14, 1))
sketch13.addConstraint(Sketcher.Constraint("Coincident", 14, 2, 15, 1))
sketch13.addConstraint(Sketcher.Constraint("Coincident", 15, 2, 12, 1))
sketch13.addConstraint(Sketcher.Constraint("Coincident", 16, 2, 17, 1))
sketch13.addConstraint(Sketcher.Constraint("Coincident", 17, 2, 18, 1))
sketch13.addConstraint(Sketcher.Constraint("Coincident", 18, 2, 19, 1))
sketch13.addConstraint(Sketcher.Constraint("Coincident", 19, 2, 16, 1))
sketch13.addConstraint(Sketcher.Constraint("Coincident", 20, 2, 21, 1))
sketch13.addConstraint(Sketcher.Constraint("Coincident", 21, 2, 22, 1))
sketch13.addConstraint(Sketcher.Constraint("Coincident", 22, 2, 23, 1))
sketch13.addConstraint(Sketcher.Constraint("Coincident", 23, 2, 20, 1))
sketch13.addConstraint(Sketcher.Constraint("Coincident", 24, 2, 25, 1))
sketch13.addConstraint(Sketcher.Constraint("Coincident", 25, 2, 26, 1))
sketch13.addConstraint(Sketcher.Constraint("Coincident", 26, 2, 27, 1))
sketch13.addConstraint(Sketcher.Constraint("Coincident", 27, 2, 24, 1))
sketch13.addConstraint(Sketcher.Constraint("Coincident", 28, 2, 29, 1))
sketch13.addConstraint(Sketcher.Constraint("Coincident", 29, 2, 30, 1))
sketch13.addConstraint(Sketcher.Constraint("Coincident", 30, 2, 31, 1))
sketch13.addConstraint(Sketcher.Constraint("Coincident", 31, 2, 28, 1))
sketch13.addConstraint(Sketcher.Constraint("Vertical", 0))
sketch13.addConstraint(Sketcher.Constraint("Horizontal", 1))
sketch13.addConstraint(Sketcher.Constraint("Vertical", 2))
sketch13.addConstraint(Sketcher.Constraint("Horizontal", 3))
sketch13.addConstraint(Sketcher.Constraint("Vertical", 4))
sketch13.addConstraint(Sketcher.Constraint("Horizontal", 5))
sketch13.addConstraint(Sketcher.Constraint("Vertical", 6))
sketch13.addConstraint(Sketcher.Constraint("Horizontal", 7))
sketch13.addConstraint(Sketcher.Constraint("Vertical", 8))
sketch13.addConstraint(Sketcher.Constraint("Horizontal", 9))
sketch13.addConstraint(Sketcher.Constraint("Vertical", 10))
sketch13.addConstraint(Sketcher.Constraint("Horizontal", 11))
sketch13.addConstraint(Sketcher.Constraint("Vertical", 12))
sketch13.addConstraint(Sketcher.Constraint("Horizontal", 13))
sketch13.addConstraint(Sketcher.Constraint("Vertical", 14))
sketch13.addConstraint(Sketcher.Constraint("Horizontal", 15))
sketch13.addConstraint(Sketcher.Constraint("Vertical", 16))
sketch13.addConstraint(Sketcher.Constraint("Horizontal", 17))
sketch13.addConstraint(Sketcher.Constraint("Vertical", 18))
sketch13.addConstraint(Sketcher.Constraint("Horizontal", 19))
sketch13.addConstraint(Sketcher.Constraint("Vertical", 20))
sketch13.addConstraint(Sketcher.Constraint("Horizontal", 21))
sketch13.addConstraint(Sketcher.Constraint("Vertical", 22))
sketch13.addConstraint(Sketcher.Constraint("Horizontal", 23))
sketch13.addConstraint(Sketcher.Constraint("Vertical", 24))
sketch13.addConstraint(Sketcher.Constraint("Horizontal", 25))
sketch13.addConstraint(Sketcher.Constraint("Vertical", 26))
sketch13.addConstraint(Sketcher.Constraint("Horizontal", 27))
sketch13.addConstraint(Sketcher.Constraint("Vertical", 28))
sketch13.addConstraint(Sketcher.Constraint("Horizontal", 29))
sketch13.addConstraint(Sketcher.Constraint("Vertical", 30))
sketch13.addConstraint(Sketcher.Constraint("Horizontal", 31))
sketch13.addConstraint(Sketcher.Constraint("PointOnObject", 16, 2, -2))
sketch13.addConstraint(Sketcher.Constraint("PointOnObject", 20, 2, -2))
sketch13.addConstraint(Sketcher.Constraint("PointOnObject", 24, 2, -2))
sketch13.addConstraint(Sketcher.Constraint("PointOnObject", 28, 2, -2))
sketch13.addConstraint(Sketcher.Constraint("Horizontal", 13, 2, 16, 2))
sketch13.addConstraint(Sketcher.Constraint("Horizontal", 15, 2, 18, 2))
sketch13.addConstraint(Sketcher.Constraint("Horizontal", 1, 2, 20, 2))
sketch13.addConstraint(Sketcher.Constraint("Horizontal", 3, 2, 22, 2))
sketch13.addConstraint(Sketcher.Constraint("Horizontal", 9, 2, 24, 2))
sketch13.addConstraint(Sketcher.Constraint("Horizontal", 11, 2, 26, 2))
sketch13.addConstraint(Sketcher.Constraint("Horizontal", 5, 2, 28, 2))
sketch13.addConstraint(Sketcher.Constraint("Horizontal", 7, 2, 30, 2))
sketch13.addConstraint(Sketcher.Constraint("Vertical", 3, 2, 4, 2))
sketch13.addConstraint(Sketcher.Constraint("Vertical", 2, 2, 5, 2))
sketch13.addConstraint(Sketcher.Constraint("Vertical", 7, 2, 8, 2))
sketch13.addConstraint(Sketcher.Constraint("Vertical", 6, 2, 9, 2))
sketch13.addConstraint(Sketcher.Constraint("Vertical", 11, 2, 12, 2))
sketch13.addConstraint(Sketcher.Constraint("Vertical", 10, 2, 13, 2))
sketch13.addConstraint(Sketcher.Constraint("Vertical", 18, 2, 21, 2))
sketch13.addConstraint(Sketcher.Constraint("Vertical", 22, 2, 25, 2))
sketch13.addConstraint(Sketcher.Constraint("Vertical", 26, 2, 29, 2))
sketch13.addConstraint(Sketcher.Constraint("Equal", 15, 17))
sketch13.addConstraint(Sketcher.Constraint("Equal", 2, 4))
sketch13.addConstraint(Sketcher.Constraint("Equal", 6, 8))
sketch13.addConstraint(Sketcher.Constraint("Equal", 10, 12))
sketch13.addConstraint(Sketcher.Constraint("DistanceX", 1, 1, 1, 2, Q("16 mm")))
sketch13.addConstraint(Sketcher.Constraint("DistanceY", 0, 2, 0, 1, Q("60 mm")))
sketch13.addConstraint(Sketcher.Constraint("DistanceX", -1, 1, 0, 2, Q("394 mm")))
sketch13.addConstraint(Sketcher.Constraint("DistanceY", -1, 1, 0, 2, Q("444 mm")))
sketch13.addConstraint(Sketcher.Constraint("DistanceY", -1, 1, 4, 2, Q("318 mm")))
sketch13.addConstraint(Sketcher.Constraint("DistanceY", -1, 1, 8, 2, Q("192 mm")))
sketch13.addConstraint(Sketcher.Constraint("DistanceY", -1, 1, 12, 2, Q("66 mm")))
pad11 = doc.addObject("PartDesign::Pad", "Pad010")
body.addObject(pad11)
pad11.Profile = sketch13
pad11.Length = 16
pad11.Reversed = True

doc.recompute()
